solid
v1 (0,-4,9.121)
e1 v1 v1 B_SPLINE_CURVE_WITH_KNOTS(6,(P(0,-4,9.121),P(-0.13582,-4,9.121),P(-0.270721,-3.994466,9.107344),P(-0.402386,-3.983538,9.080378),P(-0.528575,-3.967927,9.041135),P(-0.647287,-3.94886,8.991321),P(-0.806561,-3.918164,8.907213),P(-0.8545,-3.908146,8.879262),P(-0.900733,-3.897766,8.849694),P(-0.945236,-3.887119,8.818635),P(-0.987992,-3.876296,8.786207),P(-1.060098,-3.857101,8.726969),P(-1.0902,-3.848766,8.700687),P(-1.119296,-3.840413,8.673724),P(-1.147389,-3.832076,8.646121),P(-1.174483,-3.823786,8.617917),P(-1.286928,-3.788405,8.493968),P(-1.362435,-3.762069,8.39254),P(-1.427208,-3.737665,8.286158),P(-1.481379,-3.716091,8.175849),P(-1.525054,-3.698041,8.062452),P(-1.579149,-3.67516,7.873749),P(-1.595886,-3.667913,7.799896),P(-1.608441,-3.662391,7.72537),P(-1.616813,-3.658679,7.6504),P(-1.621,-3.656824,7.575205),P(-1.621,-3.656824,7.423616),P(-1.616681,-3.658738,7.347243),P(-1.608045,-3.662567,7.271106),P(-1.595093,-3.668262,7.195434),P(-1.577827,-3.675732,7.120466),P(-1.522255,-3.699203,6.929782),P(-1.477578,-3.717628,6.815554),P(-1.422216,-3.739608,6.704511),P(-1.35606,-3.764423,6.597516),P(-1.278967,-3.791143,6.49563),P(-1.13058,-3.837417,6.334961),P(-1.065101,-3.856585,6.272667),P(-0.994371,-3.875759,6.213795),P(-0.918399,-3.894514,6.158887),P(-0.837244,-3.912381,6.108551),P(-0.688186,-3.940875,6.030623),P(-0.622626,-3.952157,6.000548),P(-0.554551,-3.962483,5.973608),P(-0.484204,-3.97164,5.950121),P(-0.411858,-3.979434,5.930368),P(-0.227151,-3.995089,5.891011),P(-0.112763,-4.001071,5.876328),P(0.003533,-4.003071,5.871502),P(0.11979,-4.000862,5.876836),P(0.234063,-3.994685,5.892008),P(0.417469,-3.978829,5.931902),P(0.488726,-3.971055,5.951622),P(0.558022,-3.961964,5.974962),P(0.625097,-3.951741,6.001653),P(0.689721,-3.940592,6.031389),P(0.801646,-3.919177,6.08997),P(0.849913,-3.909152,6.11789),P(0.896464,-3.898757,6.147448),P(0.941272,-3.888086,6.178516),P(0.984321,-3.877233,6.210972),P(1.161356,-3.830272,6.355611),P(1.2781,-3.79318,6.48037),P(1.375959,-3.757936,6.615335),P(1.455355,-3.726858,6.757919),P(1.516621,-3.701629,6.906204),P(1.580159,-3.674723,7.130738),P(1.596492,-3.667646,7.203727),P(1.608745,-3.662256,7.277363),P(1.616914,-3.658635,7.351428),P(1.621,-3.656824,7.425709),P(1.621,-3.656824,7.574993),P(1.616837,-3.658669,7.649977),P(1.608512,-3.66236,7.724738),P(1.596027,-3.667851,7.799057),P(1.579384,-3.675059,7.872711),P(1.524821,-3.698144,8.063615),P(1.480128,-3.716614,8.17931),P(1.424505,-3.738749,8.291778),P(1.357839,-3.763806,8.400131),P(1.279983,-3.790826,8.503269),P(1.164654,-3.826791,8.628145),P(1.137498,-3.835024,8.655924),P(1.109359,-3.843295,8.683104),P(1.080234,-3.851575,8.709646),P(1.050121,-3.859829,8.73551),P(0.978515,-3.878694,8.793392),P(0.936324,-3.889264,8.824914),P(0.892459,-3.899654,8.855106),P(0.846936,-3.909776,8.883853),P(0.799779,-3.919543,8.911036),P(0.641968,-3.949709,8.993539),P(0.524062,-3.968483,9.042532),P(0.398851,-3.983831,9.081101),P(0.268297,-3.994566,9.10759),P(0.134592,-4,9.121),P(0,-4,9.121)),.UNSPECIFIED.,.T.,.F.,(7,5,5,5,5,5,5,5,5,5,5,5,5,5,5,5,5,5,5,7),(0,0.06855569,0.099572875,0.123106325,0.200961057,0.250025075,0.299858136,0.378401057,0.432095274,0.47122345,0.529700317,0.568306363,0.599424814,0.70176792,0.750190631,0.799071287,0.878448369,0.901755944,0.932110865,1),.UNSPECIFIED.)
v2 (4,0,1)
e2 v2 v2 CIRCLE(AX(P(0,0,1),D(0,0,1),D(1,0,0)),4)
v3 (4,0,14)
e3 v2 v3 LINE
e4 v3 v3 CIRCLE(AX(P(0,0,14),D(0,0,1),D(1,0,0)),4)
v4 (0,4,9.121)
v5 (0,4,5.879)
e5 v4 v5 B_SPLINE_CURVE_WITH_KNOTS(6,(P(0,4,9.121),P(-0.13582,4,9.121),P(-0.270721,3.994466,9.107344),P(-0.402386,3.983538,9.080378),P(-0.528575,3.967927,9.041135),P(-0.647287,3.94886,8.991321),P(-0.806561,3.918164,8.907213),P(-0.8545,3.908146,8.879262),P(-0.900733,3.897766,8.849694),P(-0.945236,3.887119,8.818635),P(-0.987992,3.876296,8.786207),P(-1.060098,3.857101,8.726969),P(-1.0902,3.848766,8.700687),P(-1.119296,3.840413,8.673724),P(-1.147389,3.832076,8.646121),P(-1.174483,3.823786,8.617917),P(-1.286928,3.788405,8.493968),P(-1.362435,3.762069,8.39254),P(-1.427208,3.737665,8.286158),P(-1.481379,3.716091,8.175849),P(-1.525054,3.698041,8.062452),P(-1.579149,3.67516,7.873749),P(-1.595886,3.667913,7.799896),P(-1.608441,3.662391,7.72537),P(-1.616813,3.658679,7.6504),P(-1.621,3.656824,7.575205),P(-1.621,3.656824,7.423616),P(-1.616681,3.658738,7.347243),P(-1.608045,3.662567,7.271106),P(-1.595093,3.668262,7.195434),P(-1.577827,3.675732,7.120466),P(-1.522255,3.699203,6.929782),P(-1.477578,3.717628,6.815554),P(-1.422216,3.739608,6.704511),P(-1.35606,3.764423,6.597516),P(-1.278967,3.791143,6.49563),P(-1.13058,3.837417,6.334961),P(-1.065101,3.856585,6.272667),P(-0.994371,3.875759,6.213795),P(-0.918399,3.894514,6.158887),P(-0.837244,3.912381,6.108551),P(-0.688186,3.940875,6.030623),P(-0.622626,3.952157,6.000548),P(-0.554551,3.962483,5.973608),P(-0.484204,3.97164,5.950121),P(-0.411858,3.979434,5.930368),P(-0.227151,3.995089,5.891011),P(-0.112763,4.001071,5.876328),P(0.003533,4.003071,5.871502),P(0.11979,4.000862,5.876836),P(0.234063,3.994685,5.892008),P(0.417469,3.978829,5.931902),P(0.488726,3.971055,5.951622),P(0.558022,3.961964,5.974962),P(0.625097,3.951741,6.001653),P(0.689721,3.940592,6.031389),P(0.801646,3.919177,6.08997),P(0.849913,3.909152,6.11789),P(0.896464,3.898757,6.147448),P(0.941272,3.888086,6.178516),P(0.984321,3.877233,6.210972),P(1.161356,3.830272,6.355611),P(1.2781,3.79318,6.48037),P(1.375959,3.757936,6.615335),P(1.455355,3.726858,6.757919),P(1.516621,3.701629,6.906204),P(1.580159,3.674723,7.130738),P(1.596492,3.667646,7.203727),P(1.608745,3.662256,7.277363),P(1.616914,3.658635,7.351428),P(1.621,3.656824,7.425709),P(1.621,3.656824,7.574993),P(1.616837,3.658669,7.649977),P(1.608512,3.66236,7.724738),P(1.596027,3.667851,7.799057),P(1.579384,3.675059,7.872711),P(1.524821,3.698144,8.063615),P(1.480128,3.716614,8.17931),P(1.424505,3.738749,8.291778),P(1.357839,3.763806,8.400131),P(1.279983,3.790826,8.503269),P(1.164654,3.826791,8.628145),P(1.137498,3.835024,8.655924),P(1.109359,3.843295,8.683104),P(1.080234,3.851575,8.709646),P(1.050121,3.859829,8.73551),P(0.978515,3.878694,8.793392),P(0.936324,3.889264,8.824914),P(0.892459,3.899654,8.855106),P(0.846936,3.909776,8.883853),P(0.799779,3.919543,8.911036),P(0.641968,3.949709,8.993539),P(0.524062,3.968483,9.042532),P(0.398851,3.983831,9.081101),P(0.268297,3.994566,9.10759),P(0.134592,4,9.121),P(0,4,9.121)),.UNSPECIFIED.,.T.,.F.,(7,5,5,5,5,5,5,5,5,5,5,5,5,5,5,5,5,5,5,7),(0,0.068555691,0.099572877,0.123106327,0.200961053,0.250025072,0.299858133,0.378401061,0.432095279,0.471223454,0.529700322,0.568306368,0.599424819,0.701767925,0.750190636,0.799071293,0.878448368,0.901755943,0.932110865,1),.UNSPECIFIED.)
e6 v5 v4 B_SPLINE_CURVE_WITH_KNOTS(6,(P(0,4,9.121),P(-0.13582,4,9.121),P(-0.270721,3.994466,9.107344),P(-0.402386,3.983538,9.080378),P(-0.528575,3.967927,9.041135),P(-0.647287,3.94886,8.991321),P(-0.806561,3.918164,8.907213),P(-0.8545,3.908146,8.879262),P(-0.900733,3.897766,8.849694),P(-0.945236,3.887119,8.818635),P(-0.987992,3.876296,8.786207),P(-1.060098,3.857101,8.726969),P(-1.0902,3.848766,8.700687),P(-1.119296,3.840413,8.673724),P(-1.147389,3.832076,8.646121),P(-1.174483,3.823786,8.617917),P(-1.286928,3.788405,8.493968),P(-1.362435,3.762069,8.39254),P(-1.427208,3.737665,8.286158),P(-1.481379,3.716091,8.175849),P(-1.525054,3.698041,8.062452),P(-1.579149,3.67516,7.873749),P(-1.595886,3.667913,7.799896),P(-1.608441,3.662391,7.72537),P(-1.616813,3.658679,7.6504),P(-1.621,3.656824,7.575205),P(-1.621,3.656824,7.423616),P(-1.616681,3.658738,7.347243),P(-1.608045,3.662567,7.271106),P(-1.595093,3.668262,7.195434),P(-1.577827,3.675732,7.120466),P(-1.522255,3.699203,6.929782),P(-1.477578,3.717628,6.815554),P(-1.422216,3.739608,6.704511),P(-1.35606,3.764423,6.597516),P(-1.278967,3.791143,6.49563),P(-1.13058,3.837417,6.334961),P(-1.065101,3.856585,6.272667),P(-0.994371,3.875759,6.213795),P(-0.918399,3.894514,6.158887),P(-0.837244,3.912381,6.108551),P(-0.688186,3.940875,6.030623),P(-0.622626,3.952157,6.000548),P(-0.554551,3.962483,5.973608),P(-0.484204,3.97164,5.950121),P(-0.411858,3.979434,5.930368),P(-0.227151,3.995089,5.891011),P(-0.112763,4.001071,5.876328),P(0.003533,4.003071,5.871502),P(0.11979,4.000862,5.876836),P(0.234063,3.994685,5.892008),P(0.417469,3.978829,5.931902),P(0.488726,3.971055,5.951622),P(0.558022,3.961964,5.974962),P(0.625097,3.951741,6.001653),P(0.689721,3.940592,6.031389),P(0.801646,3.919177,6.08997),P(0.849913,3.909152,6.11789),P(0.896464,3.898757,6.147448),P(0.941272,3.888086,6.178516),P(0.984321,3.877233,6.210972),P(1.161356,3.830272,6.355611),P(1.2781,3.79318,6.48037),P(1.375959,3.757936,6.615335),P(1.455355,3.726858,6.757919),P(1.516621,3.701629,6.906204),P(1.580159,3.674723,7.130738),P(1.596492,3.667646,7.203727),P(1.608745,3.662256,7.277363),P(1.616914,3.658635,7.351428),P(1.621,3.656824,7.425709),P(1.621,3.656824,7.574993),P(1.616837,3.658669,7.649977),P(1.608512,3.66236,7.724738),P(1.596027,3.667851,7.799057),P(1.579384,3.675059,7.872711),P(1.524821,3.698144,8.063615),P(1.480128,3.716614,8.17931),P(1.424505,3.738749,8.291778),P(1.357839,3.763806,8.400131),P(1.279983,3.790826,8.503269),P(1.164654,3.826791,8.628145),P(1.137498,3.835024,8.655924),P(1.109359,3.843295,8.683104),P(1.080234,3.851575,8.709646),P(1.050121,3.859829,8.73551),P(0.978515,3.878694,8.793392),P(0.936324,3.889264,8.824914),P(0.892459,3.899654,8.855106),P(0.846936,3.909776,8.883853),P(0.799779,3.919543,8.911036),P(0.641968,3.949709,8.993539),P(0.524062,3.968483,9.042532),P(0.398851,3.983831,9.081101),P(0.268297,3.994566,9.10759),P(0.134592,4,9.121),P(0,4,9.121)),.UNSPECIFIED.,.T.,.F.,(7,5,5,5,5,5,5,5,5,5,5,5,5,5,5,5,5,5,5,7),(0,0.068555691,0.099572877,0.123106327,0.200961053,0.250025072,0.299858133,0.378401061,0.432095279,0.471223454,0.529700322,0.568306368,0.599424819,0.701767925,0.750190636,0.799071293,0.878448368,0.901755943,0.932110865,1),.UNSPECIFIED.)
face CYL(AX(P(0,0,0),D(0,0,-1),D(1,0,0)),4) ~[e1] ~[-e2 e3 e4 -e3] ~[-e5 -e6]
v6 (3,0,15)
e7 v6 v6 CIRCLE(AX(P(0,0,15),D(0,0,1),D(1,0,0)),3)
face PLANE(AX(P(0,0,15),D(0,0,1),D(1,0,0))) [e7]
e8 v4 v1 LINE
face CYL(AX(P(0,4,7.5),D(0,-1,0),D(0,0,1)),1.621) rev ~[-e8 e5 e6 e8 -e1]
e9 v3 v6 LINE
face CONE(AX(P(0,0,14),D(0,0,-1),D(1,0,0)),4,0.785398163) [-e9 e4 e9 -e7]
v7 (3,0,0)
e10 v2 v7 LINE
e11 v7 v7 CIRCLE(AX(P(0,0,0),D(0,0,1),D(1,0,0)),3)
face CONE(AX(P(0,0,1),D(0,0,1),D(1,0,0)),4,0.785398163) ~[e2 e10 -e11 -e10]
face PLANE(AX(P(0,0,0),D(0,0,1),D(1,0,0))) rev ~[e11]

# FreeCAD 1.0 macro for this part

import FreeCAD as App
import Part
import Sketcher
Q = App.Units.Quantity


def edges_at(feature, points):
    """Names of the edges that pass closest to the given points."""
    edges = feature.Shape.Edges
    near = lambda p: min(range(len(edges)), key=lambda i: edges[i].distToShape(Part.Vertex(*p))[0])
    return sorted({f"Edge{near(p) + 1}" for p in points})

doc = App.newDocument("Part")
params = doc.addObject("Spreadsheet::Sheet", "Params")
for row, (alias, value) in enumerate([
    ("sketch1_diameter", "8 mm"),
    ("pad1_length", "15 mm"),
    ("hole_diameter", "3.242 mm"),
    ("chamfer_size", "1 mm"),
], start=1):
    params.set(f"A{row}", alias)
    params.set(f"B{row}", "=" + value)
    params.setAlias(f"B{row}", alias)

body = doc.addObject("PartDesign::Body", "Body")

# Sketch on XY plane
sketch1 = body.newObject("Sketcher::SketchObject", "Sketch")
sketch1.AttachmentSupport = (doc.getObject("XY_Plane"), [""])
sketch1.MapMode = "FlatFace"
sketch1.addGeometry(Part.Circle(App.Vector(0, 0, 0), App.Vector(0, 0, 1), 4), False)
sketch1.addConstraint(Sketcher.Constraint("Coincident", 0, 3, -1, 1))
sketch1.addConstraint(Sketcher.Constraint("Diameter", 0, Q("8 mm")))
sketch1.setExpression("Constraints[1]", "Params.sketch1_diameter")
pad1 = body.newObject("PartDesign::Pad", "Pad")
pad1.Profile = sketch1
pad1.setExpression("Length", "Params.pad1_length")

# Sketch on XZ plane
sketch2 = body.newObject("Sketcher::SketchObject", "Sketch001")
sketch2.AttachmentSupport = (doc.getObject("XZ_Plane"), [""])
sketch2.MapMode = "FlatFace"
sketch2.AttachmentOffset = App.Placement(App.Vector(0, 0, -4), App.Rotation())
sketch2.addGeometry(Part.Circle(App.Vector(0, 7.5, 0), App.Vector(0, 0, 1), 1.6), False)
sketch2.addConstraint(Sketcher.Constraint("PointOnObject", 0, 3, -2))
sketch2.addConstraint(Sketcher.Constraint("Diameter", 0, Q("3.242 mm")))
sketch2.addConstraint(Sketcher.Constraint("DistanceY", -1, 1, 0, 3, Q("7.5 mm")))
doc.recompute()
hole = body.newObject("PartDesign::Hole", "Hole")
hole.Profile = sketch2
hole.ThreadType = "None"
hole.setExpression("Diameter", "Params.hole_diameter")
hole.DepthType = "ThroughAll"
hole.Reversed = True
doc.recompute()

chamfer = body.newObject("PartDesign::Chamfer", "Chamfer")
chamfer.Base = (hole, edges_at(hole, [(-4, 0, 0), (-4, 0, 15)]))
chamfer.setExpression("Size", "Params.chamfer_size")

doc.recompute()
